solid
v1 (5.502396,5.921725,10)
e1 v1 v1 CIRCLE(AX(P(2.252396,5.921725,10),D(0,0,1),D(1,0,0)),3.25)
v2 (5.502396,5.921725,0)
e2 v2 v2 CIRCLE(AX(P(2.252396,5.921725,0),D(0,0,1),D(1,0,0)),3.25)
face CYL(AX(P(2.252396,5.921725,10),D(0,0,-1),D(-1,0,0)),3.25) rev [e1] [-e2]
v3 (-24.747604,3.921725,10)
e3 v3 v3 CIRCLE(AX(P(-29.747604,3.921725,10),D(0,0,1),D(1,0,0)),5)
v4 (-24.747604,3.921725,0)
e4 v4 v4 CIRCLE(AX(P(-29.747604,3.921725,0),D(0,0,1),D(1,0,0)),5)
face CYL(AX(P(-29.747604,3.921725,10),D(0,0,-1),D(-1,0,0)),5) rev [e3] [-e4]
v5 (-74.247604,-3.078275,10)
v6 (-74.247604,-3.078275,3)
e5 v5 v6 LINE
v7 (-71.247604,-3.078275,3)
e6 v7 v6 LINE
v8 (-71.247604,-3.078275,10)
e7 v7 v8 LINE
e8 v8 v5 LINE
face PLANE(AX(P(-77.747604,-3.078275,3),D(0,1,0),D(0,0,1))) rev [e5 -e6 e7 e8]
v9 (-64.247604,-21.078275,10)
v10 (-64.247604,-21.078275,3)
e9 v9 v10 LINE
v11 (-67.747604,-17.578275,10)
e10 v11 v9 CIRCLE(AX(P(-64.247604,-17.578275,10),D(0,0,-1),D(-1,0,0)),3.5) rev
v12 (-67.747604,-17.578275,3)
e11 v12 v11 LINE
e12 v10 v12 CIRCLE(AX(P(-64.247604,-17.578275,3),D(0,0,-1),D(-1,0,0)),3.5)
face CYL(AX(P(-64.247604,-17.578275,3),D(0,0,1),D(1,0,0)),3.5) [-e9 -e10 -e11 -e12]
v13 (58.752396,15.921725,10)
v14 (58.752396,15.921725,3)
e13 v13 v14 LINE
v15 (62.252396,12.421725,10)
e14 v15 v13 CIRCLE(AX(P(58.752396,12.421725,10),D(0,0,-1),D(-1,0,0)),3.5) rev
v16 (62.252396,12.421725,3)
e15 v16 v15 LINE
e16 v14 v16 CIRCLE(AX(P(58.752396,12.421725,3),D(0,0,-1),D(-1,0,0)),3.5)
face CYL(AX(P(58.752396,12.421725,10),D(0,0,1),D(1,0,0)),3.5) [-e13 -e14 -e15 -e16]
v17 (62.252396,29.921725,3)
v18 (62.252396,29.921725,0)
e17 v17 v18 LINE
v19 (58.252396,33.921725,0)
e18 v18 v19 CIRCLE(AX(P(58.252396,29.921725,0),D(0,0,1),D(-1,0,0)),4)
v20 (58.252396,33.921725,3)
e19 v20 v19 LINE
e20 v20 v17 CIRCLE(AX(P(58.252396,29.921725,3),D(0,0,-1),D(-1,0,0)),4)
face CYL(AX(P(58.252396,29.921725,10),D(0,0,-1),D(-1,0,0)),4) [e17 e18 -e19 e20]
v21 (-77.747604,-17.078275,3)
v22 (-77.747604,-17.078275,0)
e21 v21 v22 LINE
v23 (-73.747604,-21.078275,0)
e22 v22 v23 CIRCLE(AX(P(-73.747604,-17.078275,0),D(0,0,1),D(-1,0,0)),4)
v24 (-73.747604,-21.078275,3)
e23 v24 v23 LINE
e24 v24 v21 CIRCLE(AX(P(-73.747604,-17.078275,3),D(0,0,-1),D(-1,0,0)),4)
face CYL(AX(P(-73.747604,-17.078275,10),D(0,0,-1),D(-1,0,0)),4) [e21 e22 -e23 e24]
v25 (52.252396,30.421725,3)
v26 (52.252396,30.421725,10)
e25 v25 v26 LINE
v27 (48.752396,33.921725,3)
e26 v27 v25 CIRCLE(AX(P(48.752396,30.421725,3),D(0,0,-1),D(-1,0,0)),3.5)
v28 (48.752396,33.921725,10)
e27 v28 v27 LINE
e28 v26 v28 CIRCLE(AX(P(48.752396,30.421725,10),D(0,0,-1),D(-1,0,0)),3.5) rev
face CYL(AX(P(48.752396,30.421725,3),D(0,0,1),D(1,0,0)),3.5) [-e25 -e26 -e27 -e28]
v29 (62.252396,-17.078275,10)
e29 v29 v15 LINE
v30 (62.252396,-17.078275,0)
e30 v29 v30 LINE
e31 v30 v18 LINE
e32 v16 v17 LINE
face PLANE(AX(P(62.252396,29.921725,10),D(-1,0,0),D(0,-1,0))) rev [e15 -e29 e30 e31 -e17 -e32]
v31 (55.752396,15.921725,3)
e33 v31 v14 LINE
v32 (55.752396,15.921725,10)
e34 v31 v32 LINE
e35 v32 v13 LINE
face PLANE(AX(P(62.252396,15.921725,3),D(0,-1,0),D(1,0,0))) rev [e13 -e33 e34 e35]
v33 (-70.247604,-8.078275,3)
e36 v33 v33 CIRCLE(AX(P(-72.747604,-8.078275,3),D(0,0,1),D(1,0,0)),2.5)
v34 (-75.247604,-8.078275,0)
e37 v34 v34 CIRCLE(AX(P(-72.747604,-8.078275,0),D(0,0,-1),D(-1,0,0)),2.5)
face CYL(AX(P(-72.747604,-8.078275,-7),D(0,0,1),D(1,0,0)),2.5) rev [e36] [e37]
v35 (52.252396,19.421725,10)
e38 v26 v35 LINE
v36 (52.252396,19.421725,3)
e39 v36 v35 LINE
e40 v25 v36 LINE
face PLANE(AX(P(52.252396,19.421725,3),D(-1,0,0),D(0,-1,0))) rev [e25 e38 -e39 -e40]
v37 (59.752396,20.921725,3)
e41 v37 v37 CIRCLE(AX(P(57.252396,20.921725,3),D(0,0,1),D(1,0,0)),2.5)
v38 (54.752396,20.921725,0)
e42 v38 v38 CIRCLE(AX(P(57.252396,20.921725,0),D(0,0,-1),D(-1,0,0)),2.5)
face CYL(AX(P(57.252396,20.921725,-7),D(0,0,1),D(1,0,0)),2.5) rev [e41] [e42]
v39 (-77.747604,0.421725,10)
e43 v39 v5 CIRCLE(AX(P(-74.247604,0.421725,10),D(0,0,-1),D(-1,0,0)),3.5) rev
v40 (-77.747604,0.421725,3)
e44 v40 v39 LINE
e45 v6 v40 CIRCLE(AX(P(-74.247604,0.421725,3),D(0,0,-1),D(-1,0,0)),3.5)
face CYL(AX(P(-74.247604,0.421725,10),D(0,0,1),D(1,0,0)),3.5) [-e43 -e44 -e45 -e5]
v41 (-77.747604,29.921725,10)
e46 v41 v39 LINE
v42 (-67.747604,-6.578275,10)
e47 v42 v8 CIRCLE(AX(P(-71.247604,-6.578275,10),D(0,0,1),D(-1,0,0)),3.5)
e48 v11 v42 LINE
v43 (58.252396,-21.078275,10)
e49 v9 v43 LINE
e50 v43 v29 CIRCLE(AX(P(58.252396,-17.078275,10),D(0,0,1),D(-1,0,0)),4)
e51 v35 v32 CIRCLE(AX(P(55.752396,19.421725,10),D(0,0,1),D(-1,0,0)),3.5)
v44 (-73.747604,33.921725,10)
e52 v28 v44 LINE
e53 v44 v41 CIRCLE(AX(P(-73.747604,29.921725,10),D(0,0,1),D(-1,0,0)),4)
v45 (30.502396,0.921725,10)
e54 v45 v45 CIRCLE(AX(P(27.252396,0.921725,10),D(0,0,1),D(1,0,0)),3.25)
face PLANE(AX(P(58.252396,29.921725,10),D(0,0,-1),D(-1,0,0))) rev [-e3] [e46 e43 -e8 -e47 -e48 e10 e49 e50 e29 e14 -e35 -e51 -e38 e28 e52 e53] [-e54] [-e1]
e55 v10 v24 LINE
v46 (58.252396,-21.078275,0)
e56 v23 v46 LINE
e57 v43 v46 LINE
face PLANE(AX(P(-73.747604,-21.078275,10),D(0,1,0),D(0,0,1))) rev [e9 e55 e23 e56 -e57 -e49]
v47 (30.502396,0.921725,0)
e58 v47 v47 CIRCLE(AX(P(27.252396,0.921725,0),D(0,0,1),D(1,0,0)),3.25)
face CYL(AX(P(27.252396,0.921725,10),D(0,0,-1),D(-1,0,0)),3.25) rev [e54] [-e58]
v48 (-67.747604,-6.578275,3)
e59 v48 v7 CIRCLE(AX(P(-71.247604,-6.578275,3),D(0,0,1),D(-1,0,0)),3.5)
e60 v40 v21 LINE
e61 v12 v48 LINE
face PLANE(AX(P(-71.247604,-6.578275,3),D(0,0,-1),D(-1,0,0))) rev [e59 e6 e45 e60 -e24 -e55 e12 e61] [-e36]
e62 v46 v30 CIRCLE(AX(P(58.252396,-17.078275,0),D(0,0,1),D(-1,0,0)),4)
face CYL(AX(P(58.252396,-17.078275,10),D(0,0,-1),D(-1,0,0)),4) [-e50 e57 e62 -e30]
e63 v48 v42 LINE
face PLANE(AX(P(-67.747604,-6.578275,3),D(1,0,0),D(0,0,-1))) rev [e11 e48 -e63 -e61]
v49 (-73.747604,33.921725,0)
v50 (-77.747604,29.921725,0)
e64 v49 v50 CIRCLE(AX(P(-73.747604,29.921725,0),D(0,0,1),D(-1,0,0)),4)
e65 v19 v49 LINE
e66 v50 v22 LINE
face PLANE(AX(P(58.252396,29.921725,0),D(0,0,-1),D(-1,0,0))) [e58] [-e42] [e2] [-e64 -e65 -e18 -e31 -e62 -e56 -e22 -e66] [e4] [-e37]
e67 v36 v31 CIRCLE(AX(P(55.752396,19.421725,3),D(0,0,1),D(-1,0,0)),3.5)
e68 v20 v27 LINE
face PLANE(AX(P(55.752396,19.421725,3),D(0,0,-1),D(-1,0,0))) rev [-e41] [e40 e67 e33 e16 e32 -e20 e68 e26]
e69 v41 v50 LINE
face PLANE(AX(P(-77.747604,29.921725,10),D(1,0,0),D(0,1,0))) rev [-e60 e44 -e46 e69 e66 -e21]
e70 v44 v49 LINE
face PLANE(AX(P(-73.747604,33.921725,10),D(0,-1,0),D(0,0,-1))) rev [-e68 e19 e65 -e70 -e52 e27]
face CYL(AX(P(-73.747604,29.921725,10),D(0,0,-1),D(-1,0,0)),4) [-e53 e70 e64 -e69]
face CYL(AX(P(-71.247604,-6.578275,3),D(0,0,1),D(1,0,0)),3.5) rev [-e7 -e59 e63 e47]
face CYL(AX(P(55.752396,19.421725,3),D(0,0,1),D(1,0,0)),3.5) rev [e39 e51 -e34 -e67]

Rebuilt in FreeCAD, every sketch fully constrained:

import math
import FreeCAD as App
import Part
import Sketcher

V = App.Vector
Q = App.Units.Quantity


def edges_at(feature, points):
    """Names of the edges that pass closest to the given points."""
    edges = feature.Shape.Edges
    near = lambda p: min(range(len(edges)), key=lambda i: edges[i].distToShape(Part.Vertex(*p))[0])
    return sorted({f"Edge{near(p) + 1}" for p in points})

doc = App.newDocument("Part")
body = doc.addObject("PartDesign::Body", "Body")

sketch1 = body.newObject("Sketcher::SketchObject", "Sketch")
sketch1.AttachmentSupport = (doc.getObject("XY_Plane"), [""])
sketch1.MapMode = "FlatFace"
sketch1.addGeometry(Part.LineSegment(V(58.3, 33.9, 0), V(-73.7, 33.9, 0)), False)
sketch1.addGeometry(Part.ArcOfCircle(Part.Circle(V(-73.7, 29.9, 0), V(0, 0, 1), 4), math.radians(90), math.radians(180)), False)
sketch1.addGeometry(Part.LineSegment(V(-77.7, 29.9, 0), V(-77.7, -17.1, 0)), False)
sketch1.addGeometry(Part.ArcOfCircle(Part.Circle(V(-73.7, -17.1, 0), V(0, 0, 1), 4), math.radians(180), math.radians(270)), False)
sketch1.addGeometry(Part.LineSegment(V(-73.7, -21.1, 0), V(58.3, -21.1, 0)), False)
sketch1.addGeometry(Part.ArcOfCircle(Part.Circle(V(58.3, -17.1, 0), V(0, 0, 1), 4), math.radians(-90), math.radians(0)), False)
sketch1.addGeometry(Part.LineSegment(V(62.3, -17.1, 0), V(62.3, 29.9, 0)), False)
sketch1.addGeometry(Part.ArcOfCircle(Part.Circle(V(58.3, 29.9, 0), V(0, 0, 1), 4), math.radians(0), math.radians(90)), False)
sketch1.addGeometry(Part.Circle(V(27.3, 0.9, 0), V(0, 0, 1), 3.2), False)
sketch1.addGeometry(Part.Circle(V(2.3, 5.9, 0), V(0, 0, 1), 3.2), False)
sketch1.addGeometry(Part.Circle(V(-29.7, 3.9, 0), V(0, 0, 1), 5), False)
sketch1.addConstraint(Sketcher.Constraint("Tangent", 0, 2, 1, 1))
sketch1.addConstraint(Sketcher.Constraint("Tangent", 1, 2, 2, 1))
sketch1.addConstraint(Sketcher.Constraint("Tangent", 2, 2, 3, 1))
sketch1.addConstraint(Sketcher.Constraint("Tangent", 3, 2, 4, 1))
sketch1.addConstraint(Sketcher.Constraint("Tangent", 4, 2, 5, 1))
sketch1.addConstraint(Sketcher.Constraint("Tangent", 5, 2, 6, 1))
sketch1.addConstraint(Sketcher.Constraint("Tangent", 6, 2, 7, 1))
sketch1.addConstraint(Sketcher.Constraint("Tangent", 7, 2, 0, 1))
sketch1.addConstraint(Sketcher.Constraint("Horizontal", 0))
sketch1.addConstraint(Sketcher.Constraint("Vertical", 2))
sketch1.addConstraint(Sketcher.Constraint("Horizontal", 4))
sketch1.addConstraint(Sketcher.Constraint("Vertical", 6))
sketch1.addConstraint(Sketcher.Constraint("Equal", 1, 3))
sketch1.addConstraint(Sketcher.Constraint("Equal", 3, 5))
sketch1.addConstraint(Sketcher.Constraint("Equal", 5, 7))
sketch1.addConstraint(Sketcher.Constraint("Equal", 8, 9))
sketch1.addConstraint(Sketcher.Constraint("Diameter", 10, Q("10 mm")))
sketch1.addConstraint(Sketcher.Constraint("Radius", 1, Q("4 mm")))
sketch1.addConstraint(Sketcher.Constraint("Diameter", 8, Q("6.5 mm")))
sketch1.addConstraint(Sketcher.Constraint("DistanceX", 0, 2, 0, 1, Q("132 mm")))
sketch1.addConstraint(Sketcher.Constraint("DistanceY", 2, 2, 2, 1, Q("47 mm")))
sketch1.addConstraint(Sketcher.Constraint("DistanceX", 8, 3, 5, 3, Q("31 mm")))
sketch1.addConstraint(Sketcher.Constraint("DistanceY", 5, 3, 8, 3, Q("18 mm")))
sketch1.addConstraint(Sketcher.Constraint("DistanceX", 9, 3, 8, 3, Q("25 mm")))
sketch1.addConstraint(Sketcher.Constraint("DistanceY", 8, 3, 9, 3, Q("5 mm")))
sketch1.addConstraint(Sketcher.Constraint("DistanceX", 10, 3, 9, 3, Q("32 mm")))
sketch1.addConstraint(Sketcher.Constraint("DistanceY", 10, 3, 9, 3, Q("2 mm")))
sketch1.addConstraint(Sketcher.Constraint("DistanceX", 1, 3, -1, 1, Q("73.747604 mm")))
sketch1.addConstraint(Sketcher.Constraint("DistanceY", -1, 1, 1, 3, Q("29.921725 mm")))
pad1 = body.newObject("PartDesign::Pad", "Pad")
pad1.Profile = sketch1
pad1.Length = 10

sketch2 = body.newObject("Sketcher::SketchObject", "Sketch001")
sketch2.AttachmentSupport = (doc.getObject("XY_Plane"), [""])
sketch2.MapMode = "FlatFace"
sketch2.AttachmentOffset = App.Placement(V(0, 0, 10), App.Rotation())
sketch2.addGeometry(Part.LineSegment(V(-71.2, -3.1, 0), V(-77.7, -3.1, 0)), False)
sketch2.addGeometry(Part.LineSegment(V(-77.7, -3.1, 0), V(-77.7, -21.1, 0)), False)
sketch2.addGeometry(Part.LineSegment(V(-77.7, -21.1, 0), V(-67.7, -21.1, 0)), False)
sketch2.addGeometry(Part.LineSegment(V(-67.7, -21.1, 0), V(-67.7, -6.6, 0)), False)
sketch2.addGeometry(Part.ArcOfCircle(Part.Circle(V(-71.2, -6.6, 0), V(0, 0, 1), 3.5), math.radians(0), math.radians(90)), False)
sketch2.addGeometry(Part.LineSegment(V(55.8, 15.9, 0), V(62.3, 15.9, 0)), False)
sketch2.addGeometry(Part.LineSegment(V(62.3, 15.9, 0), V(62.3, 33.9, 0)), False)
sketch2.addGeometry(Part.LineSegment(V(62.3, 33.9, 0), V(52.3, 33.9, 0)), False)
sketch2.addGeometry(Part.LineSegment(V(52.3, 33.9, 0), V(52.3, 19.4, 0)), False)
sketch2.addGeometry(Part.ArcOfCircle(Part.Circle(V(55.8, 19.4, 0), V(0, 0, 1), 3.5), math.radians(180), math.radians(270)), False)
sketch2.addConstraint(Sketcher.Constraint("Coincident", 0, 2, 1, 1))
sketch2.addConstraint(Sketcher.Constraint("Coincident", 1, 2, 2, 1))
sketch2.addConstraint(Sketcher.Constraint("Coincident", 2, 2, 3, 1))
sketch2.addConstraint(Sketcher.Constraint("Tangent", 3, 2, 4, 1))
sketch2.addConstraint(Sketcher.Constraint("Tangent", 4, 2, 0, 1))
sketch2.addConstraint(Sketcher.Constraint("Coincident", 5, 2, 6, 1))
sketch2.addConstraint(Sketcher.Constraint("Coincident", 6, 2, 7, 1))
sketch2.addConstraint(Sketcher.Constraint("Coincident", 7, 2, 8, 1))
sketch2.addConstraint(Sketcher.Constraint("Tangent", 8, 2, 9, 1))
sketch2.addConstraint(Sketcher.Constraint("Tangent", 9, 2, 5, 1))
sketch2.addConstraint(Sketcher.Constraint("Horizontal", 0))
sketch2.addConstraint(Sketcher.Constraint("Vertical", 1))
sketch2.addConstraint(Sketcher.Constraint("Horizontal", 2))
sketch2.addConstraint(Sketcher.Constraint("Vertical", 3))
sketch2.addConstraint(Sketcher.Constraint("Horizontal", 5))
sketch2.addConstraint(Sketcher.Constraint("Vertical", 6))
sketch2.addConstraint(Sketcher.Constraint("Horizontal", 7))
sketch2.addConstraint(Sketcher.Constraint("Vertical", 8))
sketch2.addConstraint(Sketcher.Constraint("Equal", 4, 9))
sketch2.addConstraint(Sketcher.Constraint("Equal", 0, 5))
sketch2.addConstraint(Sketcher.Constraint("Equal", 1, 6))
sketch2.addConstraint(Sketcher.Constraint("Radius", 4, Q("3.5 mm")))
sketch2.addConstraint(Sketcher.Constraint("DistanceX", 2, 1, 2, 2, Q("10 mm")))
sketch2.addConstraint(Sketcher.Constraint("DistanceY", 1, 2, 1, 1, Q("18 mm")))
sketch2.addConstraint(Sketcher.Constraint("DistanceX", 4, 3, 9, 3, Q("127 mm")))
sketch2.addConstraint(Sketcher.Constraint("DistanceY", 4, 3, 9, 3, Q("26 mm")))
sketch2.addConstraint(Sketcher.Constraint("DistanceX", 4, 3, -1, 1, Q("71.247604 mm")))
sketch2.addConstraint(Sketcher.Constraint("DistanceY", 4, 3, -1, 1, Q("6.578275 mm")))
pocket1 = body.newObject("PartDesign::Pocket", "Pocket")
pocket1.Profile = sketch2
pocket1.Length = 7

sketch3 = body.newObject("Sketcher::SketchObject", "Sketch002")
sketch3.AttachmentSupport = (doc.getObject("XY_Plane"), [""])
sketch3.MapMode = "FlatFace"
sketch3.AttachmentOffset = App.Placement(V(0, 0, 3), App.Rotation())
sketch3.addGeometry(Part.Circle(V(-72.7, -8.1, 0), V(0, 0, 1), 2.5), False)
sketch3.addGeometry(Part.Circle(V(57.3, 20.9, 0), V(0, 0, 1), 2.5), False)
sketch3.addConstraint(Sketcher.Constraint("Equal", 0, 1))
sketch3.addConstraint(Sketcher.Constraint("Diameter", 0, Q("5 mm")))
sketch3.addConstraint(Sketcher.Constraint("DistanceX", 0, 3, 1, 3, Q("130 mm")))
sketch3.addConstraint(Sketcher.Constraint("DistanceY", 0, 3, 1, 3, Q("29 mm")))
sketch3.addConstraint(Sketcher.Constraint("DistanceX", 0, 3, -1, 1, Q("72.747604 mm")))
sketch3.addConstraint(Sketcher.Constraint("DistanceY", 0, 3, -1, 1, Q("8.078275 mm")))
pocket2 = body.newObject("PartDesign::Pocket", "Pocket001")
pocket2.Profile = sketch3
pocket2.Length = 10
doc.recompute()

fillet = body.newObject("PartDesign::Fillet", "Fillet")
fillet.Base = (pocket2, edges_at(pocket2, [
    (-67.748, -21.078, 6.5),
    (-77.748, -3.078, 6.5),
    (52.252, 33.922, 6.5),
    (62.252, 15.922, 6.5),
]))
fillet.Radius = 3.5

doc.recompute()
